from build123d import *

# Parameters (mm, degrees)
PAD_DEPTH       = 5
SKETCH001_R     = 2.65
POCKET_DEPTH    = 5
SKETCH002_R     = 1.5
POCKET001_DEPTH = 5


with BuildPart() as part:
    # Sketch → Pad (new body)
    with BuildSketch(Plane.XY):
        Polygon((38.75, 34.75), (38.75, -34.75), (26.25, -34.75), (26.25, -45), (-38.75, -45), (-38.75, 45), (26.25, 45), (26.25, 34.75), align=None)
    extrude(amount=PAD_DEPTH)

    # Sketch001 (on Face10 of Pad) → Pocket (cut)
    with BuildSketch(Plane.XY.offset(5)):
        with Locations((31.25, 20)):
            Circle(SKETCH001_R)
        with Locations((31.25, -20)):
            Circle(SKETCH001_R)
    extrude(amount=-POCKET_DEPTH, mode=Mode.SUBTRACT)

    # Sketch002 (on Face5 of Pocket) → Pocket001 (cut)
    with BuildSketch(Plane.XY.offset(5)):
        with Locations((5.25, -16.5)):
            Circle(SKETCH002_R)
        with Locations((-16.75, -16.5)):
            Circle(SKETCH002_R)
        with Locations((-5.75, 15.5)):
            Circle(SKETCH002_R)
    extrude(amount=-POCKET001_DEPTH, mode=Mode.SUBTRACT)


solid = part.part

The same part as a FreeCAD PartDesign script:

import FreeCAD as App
import Part
import Sketcher

V = App.Vector

doc = App.newDocument("Part")
body = doc.addObject("PartDesign::Body", "Body")

# Sketch on XY plane
sketch1 = body.newObject("Sketcher::SketchObject", "Sketch")
sketch1.AttachmentSupport = (doc.getObject("XY_Plane"), [""])
sketch1.MapMode = "FlatFace"
sketch1.addGeometry(Part.LineSegment(V(39, -35, 0), V(39, 35, 0)), False)
sketch1.addGeometry(Part.LineSegment(V(39, 35, 0), V(26, 35, 0)), False)
sketch1.addGeometry(Part.LineSegment(V(26, 35, 0), V(26, 45, 0)), False)
sketch1.addGeometry(Part.LineSegment(V(26, 45, 0), V(-39, 45, 0)), False)
sketch1.addGeometry(Part.LineSegment(V(-39, 45, 0), V(-39, -45, 0)), False)
sketch1.addGeometry(Part.LineSegment(V(-39, -45, 0), V(26, -45, 0)), False)
sketch1.addGeometry(Part.LineSegment(V(26, -45, 0), V(26, -35, 0)), False)
sketch1.addGeometry(Part.LineSegment(V(26, -35, 0), V(39, -35, 0)), False)
sketch1.addConstraint(Sketcher.Constraint("Coincident", 0, 2, 1, 1))
sketch1.addConstraint(Sketcher.Constraint("Coincident", 1, 2, 2, 1))
sketch1.addConstraint(Sketcher.Constraint("Coincident", 2, 2, 3, 1))
sketch1.addConstraint(Sketcher.Constraint("Coincident", 3, 2, 4, 1))
sketch1.addConstraint(Sketcher.Constraint("Coincident", 4, 2, 5, 1))
sketch1.addConstraint(Sketcher.Constraint("Coincident", 5, 2, 6, 1))
sketch1.addConstraint(Sketcher.Constraint("Coincident", 6, 2, 7, 1))
sketch1.addConstraint(Sketcher.Constraint("Coincident", 7, 2, 0, 1))
sketch1.addConstraint(Sketcher.Constraint("Vertical", 0))
sketch1.addConstraint(Sketcher.Constraint("Horizontal", 1))
sketch1.addConstraint(Sketcher.Constraint("Vertical", 2))
sketch1.addConstraint(Sketcher.Constraint("Horizontal", 3))
sketch1.addConstraint(Sketcher.Constraint("Vertical", 4))
sketch1.addConstraint(Sketcher.Constraint("Horizontal", 5))
sketch1.addConstraint(Sketcher.Constraint("Vertical", 6))
sketch1.addConstraint(Sketcher.Constraint("Horizontal", 7))
sketch1.addConstraint(Sketcher.Constraint("Symmetric", 2, 2, 5, 2, -1))
sketch1.addConstraint(Sketcher.Constraint("Equal", 2, 6))
sketch1.addConstraint(Sketcher.Constraint("DistanceX", 3, 2, 3, 1, 65.0))
sketch1.addConstraint(Sketcher.Constraint("DistanceY", 4, 2, 4, 1, 90.0))
sketch1.addConstraint(Sketcher.Constraint("DistanceX", 1, 2, 1, 1, 12.5))
sketch1.addConstraint(Sketcher.Constraint("DistanceY", 0, 1, 0, 2, 69.5))
sketch1.addConstraint(Sketcher.Constraint("DistanceX", -1, 1, 0, 2, 38.75))
pad1 = body.newObject("PartDesign::Pad", "Pad")
pad1.Profile = sketch1
pad1.Length = 5

# Sketch on XY plane
sketch2 = body.newObject("Sketcher::SketchObject", "Sketch001")
sketch2.AttachmentSupport = (doc.getObject("XY_Plane"), [""])
sketch2.MapMode = "FlatFace"
sketch2.AttachmentOffset = App.Placement(V(0, 0, 5), App.Rotation())
sketch2.addGeometry(Part.Circle(V(31.2, 20, 0), V(0, 0, 1), 2.6), False)
sketch2.addGeometry(Part.Circle(V(31.2, -20, 0), V(0, 0, 1), 2.6), False)
sketch2.addConstraint(Sketcher.Constraint("Equal", 0, 1))
sketch2.addConstraint(Sketcher.Constraint("Symmetric", 0, 3, 1, 3, -1))
sketch2.addConstraint(Sketcher.Constraint("Diameter", 0, 5.3))
sketch2.addConstraint(Sketcher.Constraint("DistanceY", -1, 1, 0, 3, 20.0))
sketch2.addConstraint(Sketcher.Constraint("DistanceX", -1, 1, 0, 3, 31.25))
pocket1 = body.newObject("PartDesign::Pocket", "Pocket")
pocket1.Profile = sketch2
pocket1.Length = 5

# Sketch on XY plane
sketch3 = body.newObject("Sketcher::SketchObject", "Sketch002")
sketch3.AttachmentSupport = (doc.getObject("XY_Plane"), [""])
sketch3.MapMode = "FlatFace"
sketch3.AttachmentOffset = App.Placement(V(0, 0, 5), App.Rotation())
sketch3.addGeometry(Part.Circle(V(5.2, -16.5, 0), V(0, 0, 1), 1.5), False)
sketch3.addGeometry(Part.Circle(V(-16.8, -16.5, 0), V(0, 0, 1), 1.5), False)
sketch3.addGeometry(Part.Circle(V(-5.8, 15.5, 0), V(0, 0, 1), 1.5), False)
sketch3.addConstraint(Sketcher.Constraint("Equal", 0, 1))
sketch3.addConstraint(Sketcher.Constraint("Equal", 1, 2))
sketch3.addConstraint(Sketcher.Constraint("Horizontal", 0, 3, 1, 3))
sketch3.addConstraint(Sketcher.Constraint("Diameter", 0, 3.0))
sketch3.addConstraint(Sketcher.Constraint("DistanceX", 1, 3, 0, 3, 22.0))
sketch3.addConstraint(Sketcher.Constraint("DistanceX", 2, 3, 0, 3, 11.0))
sketch3.addConstraint(Sketcher.Constraint("DistanceY", 0, 3, 2, 3, 32.0))
sketch3.addConstraint(Sketcher.Constraint("DistanceY", 0, 3, -1, 1, 16.5))
sketch3.addConstraint(Sketcher.Constraint("DistanceX", -1, 1, 0, 3, 5.25))
pocket2 = body.newObject("PartDesign::Pocket", "Pocket001")
pocket2.Profile = sketch3
pocket2.Length = 5

doc.recompute()
